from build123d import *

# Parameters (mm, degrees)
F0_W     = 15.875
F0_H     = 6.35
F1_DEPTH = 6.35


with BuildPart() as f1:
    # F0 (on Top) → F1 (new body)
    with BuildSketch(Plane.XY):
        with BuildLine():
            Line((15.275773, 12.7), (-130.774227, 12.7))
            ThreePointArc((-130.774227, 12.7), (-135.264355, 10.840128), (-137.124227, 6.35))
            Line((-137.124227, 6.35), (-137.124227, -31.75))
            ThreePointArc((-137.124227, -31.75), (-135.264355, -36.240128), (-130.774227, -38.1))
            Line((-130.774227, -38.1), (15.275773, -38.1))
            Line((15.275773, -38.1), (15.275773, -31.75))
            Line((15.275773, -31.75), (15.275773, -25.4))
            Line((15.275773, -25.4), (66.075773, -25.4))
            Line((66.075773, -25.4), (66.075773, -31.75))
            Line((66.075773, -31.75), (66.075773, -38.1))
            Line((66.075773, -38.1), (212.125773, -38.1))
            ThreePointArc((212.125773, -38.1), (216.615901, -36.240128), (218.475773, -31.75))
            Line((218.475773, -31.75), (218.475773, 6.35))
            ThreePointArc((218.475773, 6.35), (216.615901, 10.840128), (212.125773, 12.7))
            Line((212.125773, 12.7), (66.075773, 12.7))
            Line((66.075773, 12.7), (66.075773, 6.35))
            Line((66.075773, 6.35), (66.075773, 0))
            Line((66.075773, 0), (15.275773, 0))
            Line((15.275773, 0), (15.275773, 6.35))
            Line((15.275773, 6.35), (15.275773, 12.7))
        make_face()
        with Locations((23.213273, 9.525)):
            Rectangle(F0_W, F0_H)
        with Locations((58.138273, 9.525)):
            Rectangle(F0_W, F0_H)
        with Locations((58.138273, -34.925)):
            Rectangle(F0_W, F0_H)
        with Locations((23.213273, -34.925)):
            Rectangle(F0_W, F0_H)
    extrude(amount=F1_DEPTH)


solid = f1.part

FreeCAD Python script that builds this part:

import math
import FreeCAD as App
import Part
import Sketcher

V = App.Vector
Q = App.Units.Quantity

doc = App.newDocument("Part")
body = doc.addObject("PartDesign::Body", "Body")

# Sketch on XY plane
sketch1 = body.newObject("Sketcher::SketchObject", "Sketch")
sketch1.AttachmentSupport = (doc.getObject("XY_Plane"), [""])
sketch1.MapMode = "FlatFace"
sketch1.addGeometry([
    Part.ArcOfCircle(Part.Circle(V(-131, 6, 0), V(0, 0, 1), 6), math.radians(90), math.radians(180)),  # 0
    Part.LineSegment(V(-137, 6, 0), V(-137, -32, 0)),  # 1
    Part.ArcOfCircle(Part.Circle(V(-131, -32, 0), V(0, 0, 1), 6), math.radians(-180), math.radians(-90)),  # 2
    Part.LineSegment(V(-131, -38, 0), V(31, -38, 0)),  # 3
    Part.LineSegment(V(31, -38, 0), V(31, -32, 0)),  # 4
    Part.LineSegment(V(31, -32, 0), V(15, -32, 0)),  # 5
    Part.LineSegment(V(15, -32, 0), V(15, -25, 0)),  # 6
    Part.LineSegment(V(15, -25, 0), V(66, -25, 0)),  # 7
    Part.LineSegment(V(66, -25, 0), V(66, -32, 0)),  # 8
    Part.LineSegment(V(66, -32, 0), V(50, -32, 0)),  # 9
    Part.LineSegment(V(50, -32, 0), V(50, -38, 0)),  # 10
    Part.LineSegment(V(50, -38, 0), V(212, -38, 0)),  # 11
    Part.ArcOfCircle(Part.Circle(V(212, -32, 0), V(0, 0, 1), 6), math.radians(-90), math.radians(0)),  # 12
    Part.LineSegment(V(218, -32, 0), V(218, 6, 0)),  # 13
    Part.ArcOfCircle(Part.Circle(V(212, 6, 0), V(0, 0, 1), 6), math.radians(0), math.radians(90)),  # 14
    Part.LineSegment(V(212, 13, 0), V(50, 13, 0)),  # 15
    Part.LineSegment(V(50, 13, 0), V(50, 6, 0)),  # 16
    Part.LineSegment(V(50, 6, 0), V(66, 6, 0)),  # 17
    Part.LineSegment(V(66, 6, 0), V(66, 0, 0)),  # 18
    Part.LineSegment(V(66, 0, 0), V(15, 0, 0)),  # 19
    Part.LineSegment(V(15, 0, 0), V(15, 6, 0)),  # 20
    Part.LineSegment(V(15, 6, 0), V(31, 6, 0)),  # 21
    Part.LineSegment(V(31, 6, 0), V(31, 13, 0)),  # 22
    Part.LineSegment(V(31, 13, 0), V(-131, 13, 0)),  # 23
], False)
sketch1.addConstraint([
    Sketcher.Constraint("Tangent", 0, 2, 1, 1),
    Sketcher.Constraint("Tangent", 1, 2, 2, 1),
    Sketcher.Constraint("Tangent", 2, 2, 3, 1),
    Sketcher.Constraint("Coincident", 3, 2, 4, 1),
    Sketcher.Constraint("Coincident", 4, 2, 5, 1),
    Sketcher.Constraint("Coincident", 5, 2, 6, 1),
    Sketcher.Constraint("Coincident", 6, 2, 7, 1),
    Sketcher.Constraint("Coincident", 7, 2, 8, 1),
    Sketcher.Constraint("Coincident", 8, 2, 9, 1),
    Sketcher.Constraint("Coincident", 9, 2, 10, 1),
    Sketcher.Constraint("Coincident", 10, 2, 11, 1),
    Sketcher.Constraint("Tangent", 11, 2, 12, 1),
    Sketcher.Constraint("Tangent", 12, 2, 13, 1),
    Sketcher.Constraint("Tangent", 13, 2, 14, 1),
    Sketcher.Constraint("Tangent", 14, 2, 15, 1),
    Sketcher.Constraint("Coincident", 15, 2, 16, 1),
    Sketcher.Constraint("Coincident", 16, 2, 17, 1),
    Sketcher.Constraint("Coincident", 17, 2, 18, 1),
    Sketcher.Constraint("Coincident", 18, 2, 19, 1),
    Sketcher.Constraint("Coincident", 19, 2, 20, 1),
    Sketcher.Constraint("Coincident", 20, 2, 21, 1),
    Sketcher.Constraint("Coincident", 21, 2, 22, 1),
    Sketcher.Constraint("Coincident", 22, 2, 23, 1),
    Sketcher.Constraint("Tangent", 23, 2, 0, 1),
    Sketcher.Constraint("Vertical", 1),
    Sketcher.Constraint("Horizontal", 3),
    Sketcher.Constraint("Vertical", 4),
    Sketcher.Constraint("Horizontal", 5),
    Sketcher.Constraint("Vertical", 6),
    Sketcher.Constraint("Horizontal", 7),
    Sketcher.Constraint("Vertical", 8),
    Sketcher.Constraint("Horizontal", 9),
    Sketcher.Constraint("Vertical", 10),
    Sketcher.Constraint("Horizontal", 11),
    Sketcher.Constraint("Vertical", 13),
    Sketcher.Constraint("Horizontal", 15),
    Sketcher.Constraint("Vertical", 16),
    Sketcher.Constraint("Horizontal", 17),
    Sketcher.Constraint("Vertical", 18),
    Sketcher.Constraint("Horizontal", 19),
    Sketcher.Constraint("Vertical", 20),
    Sketcher.Constraint("Horizontal", 21),
    Sketcher.Constraint("Vertical", 22),
    Sketcher.Constraint("Horizontal", 23),
    Sketcher.Constraint("Equal", 0, 2),
    Sketcher.Constraint("Equal", 2, 12),
    Sketcher.Constraint("Equal", 12, 14),
    Sketcher.Constraint("PointOnObject", 18, 2, -1),
    Sketcher.Constraint("Horizontal", 2, 3, 12, 3),
    Sketcher.Constraint("Horizontal", 0, 3, 14, 3),
    Sketcher.Constraint("Horizontal", 1, 2, 4, 2),
    Sketcher.Constraint("Horizontal", 5, 2, 8, 2),
    Sketcher.Constraint("Horizontal", 13, 2, 16, 2),
    Sketcher.Constraint("Horizontal", 17, 2, 20, 2),
    Sketcher.Constraint("Vertical", 10, 2, 15, 2),
    Sketcher.Constraint("Vertical", 8, 2, 17, 2),
    Sketcher.Constraint("Vertical", 6, 2, 19, 2),
    Sketcher.Constraint("Vertical", 4, 2, 21, 2),
    Sketcher.Constraint("Equal", 5, 9),
    Sketcher.Constraint("Equal", 3, 11),
    Sketcher.Constraint("Equal", 4, 6),
    Sketcher.Constraint("Equal", 16, 18),
    Sketcher.Constraint("DistanceX", 7, 1, 7, 2, Q("2 in")),
    Sketcher.Constraint("Radius", 0, Q("0.25 in")),
    Sketcher.Constraint("DistanceY", 1, 2, 1, 1, Q("1.5 in")),
    Sketcher.Constraint("DistanceX", 8, 2, 12, 2, Q("6 in")),
    Sketcher.Constraint("DistanceX", 3, 1, 3, 2, Q("6.375 in")),
    Sketcher.Constraint("DistanceX", 0, 3, -1, 1, Q("130.774227 mm")),
])
pad1 = body.newObject("PartDesign::Pad", "Pad")
pad1.Profile = sketch1
pad1.Length = Q("0.25 in")

doc.recompute()
